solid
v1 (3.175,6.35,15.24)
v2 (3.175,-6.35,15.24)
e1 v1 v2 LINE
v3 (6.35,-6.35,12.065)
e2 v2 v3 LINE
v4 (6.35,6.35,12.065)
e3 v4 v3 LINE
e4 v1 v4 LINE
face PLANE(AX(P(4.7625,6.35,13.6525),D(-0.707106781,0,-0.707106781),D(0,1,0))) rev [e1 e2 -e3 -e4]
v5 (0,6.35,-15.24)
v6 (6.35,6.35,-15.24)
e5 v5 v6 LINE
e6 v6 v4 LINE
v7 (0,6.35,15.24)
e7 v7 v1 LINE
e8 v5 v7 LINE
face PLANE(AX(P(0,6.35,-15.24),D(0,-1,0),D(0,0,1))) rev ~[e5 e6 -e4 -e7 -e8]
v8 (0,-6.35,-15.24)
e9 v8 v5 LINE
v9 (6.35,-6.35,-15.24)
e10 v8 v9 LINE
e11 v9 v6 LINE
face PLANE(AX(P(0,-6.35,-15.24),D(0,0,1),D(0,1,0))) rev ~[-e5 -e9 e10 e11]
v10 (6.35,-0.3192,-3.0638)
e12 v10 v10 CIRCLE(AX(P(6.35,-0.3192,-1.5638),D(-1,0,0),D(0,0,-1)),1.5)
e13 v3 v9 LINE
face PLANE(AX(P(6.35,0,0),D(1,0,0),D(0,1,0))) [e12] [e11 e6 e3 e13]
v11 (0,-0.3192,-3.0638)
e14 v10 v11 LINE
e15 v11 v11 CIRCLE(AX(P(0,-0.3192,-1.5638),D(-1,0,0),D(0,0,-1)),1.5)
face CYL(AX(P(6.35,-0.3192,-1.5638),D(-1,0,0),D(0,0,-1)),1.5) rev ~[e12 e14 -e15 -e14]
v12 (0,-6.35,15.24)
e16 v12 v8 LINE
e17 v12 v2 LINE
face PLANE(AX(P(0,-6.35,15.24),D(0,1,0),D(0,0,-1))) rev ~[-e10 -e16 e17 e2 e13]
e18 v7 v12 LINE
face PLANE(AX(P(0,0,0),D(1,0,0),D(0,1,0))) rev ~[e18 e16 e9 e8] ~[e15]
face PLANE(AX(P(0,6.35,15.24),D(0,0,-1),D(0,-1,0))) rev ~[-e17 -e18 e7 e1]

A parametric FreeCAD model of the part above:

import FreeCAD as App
import Part
import Sketcher
from FreeCAD import Vector
Q = App.Units.Quantity


def edges_at(feature, points):
    """Names of the edges that pass closest to the given points."""
    edges = feature.Shape.Edges
    near = lambda p: min(range(len(edges)), key=lambda i: edges[i].distToShape(Part.Vertex(*p))[0])
    return sorted({f"Edge{near(p) + 1}" for p in points})

doc = App.newDocument("Part")
body = doc.addObject("PartDesign::Body", "Body")

# Sketch on YZ plane
sketch1 = body.newObject("Sketcher::SketchObject", "Sketch")
sketch1.AttachmentSupport = (doc.getObject("YZ_Plane"), [""])
sketch1.MapMode = "FlatFace"
sketch1.addGeometry(Part.LineSegment(Vector(6, -15, 0), Vector(6, 15, 0)), False)
sketch1.addGeometry(Part.LineSegment(Vector(6, 15, 0), Vector(-6, 15, 0)), False)
sketch1.addGeometry(Part.LineSegment(Vector(-6, 15, 0), Vector(-6, -15, 0)), False)
sketch1.addGeometry(Part.LineSegment(Vector(-6, -15, 0), Vector(6, -15, 0)), False)
sketch1.addConstraint(Sketcher.Constraint("Coincident", 0, 2, 1, 1))
sketch1.addConstraint(Sketcher.Constraint("Coincident", 1, 2, 2, 1))
sketch1.addConstraint(Sketcher.Constraint("Coincident", 2, 2, 3, 1))
sketch1.addConstraint(Sketcher.Constraint("Coincident", 3, 2, 0, 1))
sketch1.addConstraint(Sketcher.Constraint("Vertical", 0))
sketch1.addConstraint(Sketcher.Constraint("Horizontal", 1))
sketch1.addConstraint(Sketcher.Constraint("Vertical", 2))
sketch1.addConstraint(Sketcher.Constraint("Horizontal", 3))
sketch1.addConstraint(Sketcher.Constraint("Symmetric", 0, 2, 2, 2, -1, 1))
sketch1.addConstraint(Sketcher.Constraint("DistanceX", 1, 2, 1, 1, Q("0.5 in")))
sketch1.addConstraint(Sketcher.Constraint("DistanceY", 0, 1, 0, 2, Q("1.2 in")))
pad1 = body.newObject("PartDesign::Pad", "Pad")
pad1.Profile = sketch1
pad1.Length = Q("0.25 in")
doc.recompute()

chamfer = body.newObject("PartDesign::Chamfer", "Chamfer")
chamfer.Base = (pad1, edges_at(pad1, [(6.35, 0, 15.24)]))
chamfer.Size = Q("0.125 in")

# Sketch on YZ plane
sketch2 = body.newObject("Sketcher::SketchObject", "Sketch001")
sketch2.AttachmentSupport = (doc.getObject("YZ_Plane"), [""])
sketch2.MapMode = "FlatFace"
sketch2.AttachmentOffset = App.Placement(Vector(0, 0, 0.25 * 25.4), App.Rotation())
sketch2.addGeometry(Part.Circle(Vector(-0.3, -1.6, 0), Vector(0, 0, 1), 1.5), False)
sketch2.addConstraint(Sketcher.Constraint("Diameter", 0, Q("0.1181 in")))
sketch2.addConstraint(Sketcher.Constraint("DistanceX", 0, 3, -1, 1, 0.3192))
sketch2.addConstraint(Sketcher.Constraint("DistanceY", 0, 3, -1, 1, 1.5638))
doc.recompute()
hole = body.newObject("PartDesign::Hole", "Hole")
hole.Profile = sketch2
hole.ThreadType = "None"
hole.Diameter = Q("0.1181102 in")
hole.DepthType = "ThroughAll"

doc.recompute()
